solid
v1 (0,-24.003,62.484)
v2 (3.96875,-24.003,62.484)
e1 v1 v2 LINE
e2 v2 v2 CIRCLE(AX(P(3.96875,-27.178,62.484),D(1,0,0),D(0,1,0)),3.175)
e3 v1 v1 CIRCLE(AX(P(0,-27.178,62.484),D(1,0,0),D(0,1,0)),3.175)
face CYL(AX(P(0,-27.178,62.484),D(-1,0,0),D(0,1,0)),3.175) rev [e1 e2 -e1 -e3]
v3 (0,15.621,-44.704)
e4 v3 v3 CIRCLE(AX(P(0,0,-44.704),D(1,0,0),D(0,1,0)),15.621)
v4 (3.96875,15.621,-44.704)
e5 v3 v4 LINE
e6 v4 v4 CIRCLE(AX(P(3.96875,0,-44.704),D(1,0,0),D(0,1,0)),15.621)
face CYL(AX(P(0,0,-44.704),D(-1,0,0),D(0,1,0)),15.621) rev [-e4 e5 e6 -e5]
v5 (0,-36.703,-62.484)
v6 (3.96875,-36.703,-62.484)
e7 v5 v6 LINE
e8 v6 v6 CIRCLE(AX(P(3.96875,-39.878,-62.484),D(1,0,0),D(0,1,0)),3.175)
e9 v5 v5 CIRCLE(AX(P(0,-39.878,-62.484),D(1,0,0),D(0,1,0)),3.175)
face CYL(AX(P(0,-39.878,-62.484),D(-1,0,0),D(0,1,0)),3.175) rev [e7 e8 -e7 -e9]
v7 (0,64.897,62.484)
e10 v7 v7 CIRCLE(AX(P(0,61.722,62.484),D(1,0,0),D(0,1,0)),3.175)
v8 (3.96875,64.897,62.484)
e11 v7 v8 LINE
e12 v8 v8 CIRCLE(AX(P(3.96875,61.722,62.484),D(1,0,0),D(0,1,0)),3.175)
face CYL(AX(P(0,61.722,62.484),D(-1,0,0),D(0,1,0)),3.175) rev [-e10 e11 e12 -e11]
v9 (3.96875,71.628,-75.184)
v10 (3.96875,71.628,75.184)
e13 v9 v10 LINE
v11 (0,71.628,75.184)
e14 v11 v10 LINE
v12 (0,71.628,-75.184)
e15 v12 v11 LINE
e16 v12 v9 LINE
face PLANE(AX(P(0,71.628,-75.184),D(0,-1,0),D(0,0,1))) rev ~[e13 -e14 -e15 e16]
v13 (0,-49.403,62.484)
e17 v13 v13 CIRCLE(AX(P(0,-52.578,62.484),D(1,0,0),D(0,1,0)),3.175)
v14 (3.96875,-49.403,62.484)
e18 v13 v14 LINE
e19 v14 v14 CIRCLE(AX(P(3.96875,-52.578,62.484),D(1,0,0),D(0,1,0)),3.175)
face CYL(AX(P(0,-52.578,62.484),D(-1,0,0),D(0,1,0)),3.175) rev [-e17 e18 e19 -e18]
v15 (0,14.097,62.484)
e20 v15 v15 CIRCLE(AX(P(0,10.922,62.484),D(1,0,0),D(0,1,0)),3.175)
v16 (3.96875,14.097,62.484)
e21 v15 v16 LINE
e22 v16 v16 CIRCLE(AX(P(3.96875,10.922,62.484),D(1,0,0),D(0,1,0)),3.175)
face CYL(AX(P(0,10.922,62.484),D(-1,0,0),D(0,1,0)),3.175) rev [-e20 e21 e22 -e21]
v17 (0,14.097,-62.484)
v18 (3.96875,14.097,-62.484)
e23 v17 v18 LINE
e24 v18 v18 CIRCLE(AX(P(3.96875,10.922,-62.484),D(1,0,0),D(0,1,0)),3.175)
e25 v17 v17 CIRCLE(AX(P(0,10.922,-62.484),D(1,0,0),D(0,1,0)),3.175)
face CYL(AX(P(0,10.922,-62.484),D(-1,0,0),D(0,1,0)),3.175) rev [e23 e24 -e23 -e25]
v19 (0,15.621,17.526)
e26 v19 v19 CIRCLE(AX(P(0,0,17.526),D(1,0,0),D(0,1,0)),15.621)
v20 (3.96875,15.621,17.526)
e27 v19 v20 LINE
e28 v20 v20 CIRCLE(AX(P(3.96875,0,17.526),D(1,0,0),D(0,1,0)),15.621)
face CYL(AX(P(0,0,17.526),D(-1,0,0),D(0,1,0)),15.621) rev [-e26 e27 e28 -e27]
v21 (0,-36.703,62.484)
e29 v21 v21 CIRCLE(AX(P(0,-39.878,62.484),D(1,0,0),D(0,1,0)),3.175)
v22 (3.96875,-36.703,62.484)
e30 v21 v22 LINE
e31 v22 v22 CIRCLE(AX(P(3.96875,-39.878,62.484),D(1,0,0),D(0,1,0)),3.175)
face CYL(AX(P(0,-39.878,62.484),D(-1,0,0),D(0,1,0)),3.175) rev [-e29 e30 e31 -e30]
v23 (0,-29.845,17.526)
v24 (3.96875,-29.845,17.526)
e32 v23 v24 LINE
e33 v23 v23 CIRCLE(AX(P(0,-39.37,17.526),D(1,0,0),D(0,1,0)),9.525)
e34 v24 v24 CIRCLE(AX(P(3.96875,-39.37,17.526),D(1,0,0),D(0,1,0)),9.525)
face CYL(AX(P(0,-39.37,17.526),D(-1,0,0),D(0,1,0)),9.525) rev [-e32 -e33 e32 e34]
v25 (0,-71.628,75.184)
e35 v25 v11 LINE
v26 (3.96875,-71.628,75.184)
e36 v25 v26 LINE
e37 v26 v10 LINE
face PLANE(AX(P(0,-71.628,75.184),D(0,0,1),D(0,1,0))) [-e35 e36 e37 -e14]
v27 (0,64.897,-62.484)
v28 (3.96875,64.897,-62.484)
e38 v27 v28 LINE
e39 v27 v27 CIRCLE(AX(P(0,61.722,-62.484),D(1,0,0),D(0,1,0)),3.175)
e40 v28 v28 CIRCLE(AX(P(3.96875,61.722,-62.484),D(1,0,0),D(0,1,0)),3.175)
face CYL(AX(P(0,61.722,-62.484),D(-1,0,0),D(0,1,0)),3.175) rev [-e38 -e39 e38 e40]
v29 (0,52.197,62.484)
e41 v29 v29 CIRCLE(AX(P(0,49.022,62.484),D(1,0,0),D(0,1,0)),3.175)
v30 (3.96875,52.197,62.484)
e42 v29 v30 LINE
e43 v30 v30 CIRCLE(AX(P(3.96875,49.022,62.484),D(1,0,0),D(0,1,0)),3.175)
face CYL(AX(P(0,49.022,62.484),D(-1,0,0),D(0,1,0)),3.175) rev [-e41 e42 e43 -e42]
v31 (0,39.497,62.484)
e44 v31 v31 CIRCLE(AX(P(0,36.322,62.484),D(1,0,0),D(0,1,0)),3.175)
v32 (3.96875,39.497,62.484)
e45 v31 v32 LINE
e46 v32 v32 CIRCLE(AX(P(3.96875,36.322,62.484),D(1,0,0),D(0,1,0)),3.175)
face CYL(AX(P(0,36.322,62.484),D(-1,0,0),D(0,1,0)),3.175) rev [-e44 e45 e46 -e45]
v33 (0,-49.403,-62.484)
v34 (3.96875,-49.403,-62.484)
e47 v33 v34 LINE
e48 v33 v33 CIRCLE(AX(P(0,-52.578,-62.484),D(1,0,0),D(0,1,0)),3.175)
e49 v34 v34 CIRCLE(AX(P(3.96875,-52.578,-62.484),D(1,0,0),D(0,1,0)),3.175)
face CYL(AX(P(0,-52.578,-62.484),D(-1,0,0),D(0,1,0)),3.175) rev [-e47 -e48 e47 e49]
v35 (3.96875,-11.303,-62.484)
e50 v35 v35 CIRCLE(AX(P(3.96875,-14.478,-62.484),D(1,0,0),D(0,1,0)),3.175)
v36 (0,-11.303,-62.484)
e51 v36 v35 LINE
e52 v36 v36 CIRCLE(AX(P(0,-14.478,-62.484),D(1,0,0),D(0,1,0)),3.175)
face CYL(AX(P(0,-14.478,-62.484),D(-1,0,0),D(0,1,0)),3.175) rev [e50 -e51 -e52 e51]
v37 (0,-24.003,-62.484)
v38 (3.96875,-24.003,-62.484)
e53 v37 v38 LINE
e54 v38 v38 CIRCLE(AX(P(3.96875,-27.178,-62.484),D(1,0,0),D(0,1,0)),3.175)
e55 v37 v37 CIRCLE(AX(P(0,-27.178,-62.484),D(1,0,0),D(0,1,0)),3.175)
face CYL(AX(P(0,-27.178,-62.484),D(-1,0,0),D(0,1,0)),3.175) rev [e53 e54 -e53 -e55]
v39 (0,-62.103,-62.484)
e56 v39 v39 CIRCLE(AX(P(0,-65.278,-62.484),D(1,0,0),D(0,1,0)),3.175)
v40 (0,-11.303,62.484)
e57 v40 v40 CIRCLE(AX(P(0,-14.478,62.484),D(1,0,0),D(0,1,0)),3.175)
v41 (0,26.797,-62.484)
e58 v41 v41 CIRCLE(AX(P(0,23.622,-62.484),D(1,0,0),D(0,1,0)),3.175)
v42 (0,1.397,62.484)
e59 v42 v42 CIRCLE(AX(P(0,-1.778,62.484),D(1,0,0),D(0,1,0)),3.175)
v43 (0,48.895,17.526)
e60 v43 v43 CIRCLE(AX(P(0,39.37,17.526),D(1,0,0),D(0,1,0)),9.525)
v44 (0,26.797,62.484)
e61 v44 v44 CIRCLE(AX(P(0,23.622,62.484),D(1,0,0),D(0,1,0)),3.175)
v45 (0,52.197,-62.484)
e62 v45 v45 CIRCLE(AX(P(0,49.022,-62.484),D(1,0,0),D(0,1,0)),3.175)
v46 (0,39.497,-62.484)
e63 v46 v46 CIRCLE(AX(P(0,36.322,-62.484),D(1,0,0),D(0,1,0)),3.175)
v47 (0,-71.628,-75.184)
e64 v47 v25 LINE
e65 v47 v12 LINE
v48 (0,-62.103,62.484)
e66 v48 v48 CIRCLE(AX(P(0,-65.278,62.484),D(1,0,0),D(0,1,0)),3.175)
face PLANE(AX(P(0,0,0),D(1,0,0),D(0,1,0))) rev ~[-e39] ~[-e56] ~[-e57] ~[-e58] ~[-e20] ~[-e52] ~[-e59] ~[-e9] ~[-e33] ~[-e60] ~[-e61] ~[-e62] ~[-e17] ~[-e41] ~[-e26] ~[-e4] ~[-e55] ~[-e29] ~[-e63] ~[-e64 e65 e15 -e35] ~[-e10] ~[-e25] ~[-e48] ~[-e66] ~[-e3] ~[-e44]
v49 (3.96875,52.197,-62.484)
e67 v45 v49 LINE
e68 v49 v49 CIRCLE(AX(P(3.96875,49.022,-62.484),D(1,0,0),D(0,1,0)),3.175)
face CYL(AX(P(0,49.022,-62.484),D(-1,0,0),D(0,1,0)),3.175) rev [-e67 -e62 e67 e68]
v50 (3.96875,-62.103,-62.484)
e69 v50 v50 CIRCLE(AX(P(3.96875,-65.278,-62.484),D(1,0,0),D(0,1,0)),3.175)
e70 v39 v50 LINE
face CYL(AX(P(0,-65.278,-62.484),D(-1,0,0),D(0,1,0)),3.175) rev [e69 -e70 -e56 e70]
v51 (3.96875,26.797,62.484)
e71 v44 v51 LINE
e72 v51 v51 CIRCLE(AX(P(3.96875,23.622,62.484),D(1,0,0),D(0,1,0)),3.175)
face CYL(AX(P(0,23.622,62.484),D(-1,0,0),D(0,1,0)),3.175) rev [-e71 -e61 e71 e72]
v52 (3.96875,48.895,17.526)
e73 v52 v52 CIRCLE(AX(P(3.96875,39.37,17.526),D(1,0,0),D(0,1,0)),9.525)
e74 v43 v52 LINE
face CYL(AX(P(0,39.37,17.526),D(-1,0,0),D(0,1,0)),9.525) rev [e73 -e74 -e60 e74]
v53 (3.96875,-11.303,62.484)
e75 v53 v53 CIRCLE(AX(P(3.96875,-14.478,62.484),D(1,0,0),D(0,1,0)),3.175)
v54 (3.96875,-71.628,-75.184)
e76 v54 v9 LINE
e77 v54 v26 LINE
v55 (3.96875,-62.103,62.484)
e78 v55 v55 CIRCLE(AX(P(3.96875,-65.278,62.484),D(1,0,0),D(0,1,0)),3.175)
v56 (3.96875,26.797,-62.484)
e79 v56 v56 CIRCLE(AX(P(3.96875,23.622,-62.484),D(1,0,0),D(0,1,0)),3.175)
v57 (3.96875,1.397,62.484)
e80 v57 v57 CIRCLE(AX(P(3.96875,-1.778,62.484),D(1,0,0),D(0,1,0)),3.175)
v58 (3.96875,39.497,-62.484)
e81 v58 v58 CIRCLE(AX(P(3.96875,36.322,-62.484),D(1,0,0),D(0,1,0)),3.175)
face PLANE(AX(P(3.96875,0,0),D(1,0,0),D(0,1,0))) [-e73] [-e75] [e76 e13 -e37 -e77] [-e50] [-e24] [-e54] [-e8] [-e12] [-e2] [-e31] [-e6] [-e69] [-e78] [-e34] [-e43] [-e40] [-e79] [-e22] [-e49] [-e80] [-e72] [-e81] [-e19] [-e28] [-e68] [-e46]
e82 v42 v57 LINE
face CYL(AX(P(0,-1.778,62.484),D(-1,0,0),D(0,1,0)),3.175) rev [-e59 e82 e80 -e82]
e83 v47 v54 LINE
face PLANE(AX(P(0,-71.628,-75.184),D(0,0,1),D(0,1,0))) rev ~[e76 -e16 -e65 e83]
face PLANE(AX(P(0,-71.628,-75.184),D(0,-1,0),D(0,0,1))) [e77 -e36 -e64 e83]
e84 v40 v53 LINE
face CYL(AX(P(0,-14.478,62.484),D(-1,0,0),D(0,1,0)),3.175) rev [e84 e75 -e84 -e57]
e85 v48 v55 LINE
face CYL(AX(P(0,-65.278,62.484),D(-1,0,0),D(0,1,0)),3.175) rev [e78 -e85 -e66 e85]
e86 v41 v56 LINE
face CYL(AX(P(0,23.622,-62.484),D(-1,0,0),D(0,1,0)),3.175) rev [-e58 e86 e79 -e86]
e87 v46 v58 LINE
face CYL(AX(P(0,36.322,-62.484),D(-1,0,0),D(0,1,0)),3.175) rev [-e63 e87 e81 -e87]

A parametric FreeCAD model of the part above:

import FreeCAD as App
import Part
import Sketcher
from FreeCAD import Vector
Q = App.Units.Quantity

doc = App.newDocument("Part")
body = doc.addObject("PartDesign::Body", "Body")

# Sketch on YZ plane
sketch1 = body.newObject("Sketcher::SketchObject", "Sketch")
sketch1.AttachmentSupport = (doc.getObject("YZ_Plane"), [""])
sketch1.MapMode = "FlatFace"
sketch1.addGeometry(Part.LineSegment(Vector(-71.628, 75.184, 0), Vector(-71.628, -75.184, 0)), False)
sketch1.addGeometry(Part.LineSegment(Vector(-71.628, -75.184, 0), Vector(71.628, -75.184, 0)), False)
sketch1.addGeometry(Part.LineSegment(Vector(71.628, -75.184, 0), Vector(71.628, 75.184, 0)), False)
sketch1.addGeometry(Part.LineSegment(Vector(71.628, 75.184, 0), Vector(-71.628, 75.184, 0)), False)
sketch1.addGeometry(Part.Circle(Vector(-65.278, -62.484, 0), Vector(0, 0, 1), 3.175), False)
sketch1.addGeometry(Part.Circle(Vector(-52.578, -62.484, 0), Vector(0, 0, 1), 3.175), False)
sketch1.addGeometry(Part.Circle(Vector(-39.878, -62.484, 0), Vector(0, 0, 1), 3.175), False)
sketch1.addGeometry(Part.Circle(Vector(-27.178, -62.484, 0), Vector(0, 0, 1), 3.175), False)
sketch1.addGeometry(Part.Circle(Vector(-14.478, -62.484, 0), Vector(0, 0, 1), 3.175), False)
sketch1.addGeometry(Part.Circle(Vector(10.922, -62.484, 0), Vector(0, 0, 1), 3.175), False)
sketch1.addGeometry(Part.Circle(Vector(23.622, -62.484, 0), Vector(0, 0, 1), 3.175), False)
sketch1.addGeometry(Part.Circle(Vector(0, -44.704, 0), Vector(0, 0, 1), 15.621), False)
sketch1.addGeometry(Part.Circle(Vector(36.322, -62.484, 0), Vector(0, 0, 1), 3.175), False)
sketch1.addGeometry(Part.Circle(Vector(49.022, -62.484, 0), Vector(0, 0, 1), 3.175), False)
sketch1.addGeometry(Part.Circle(Vector(61.722, -62.484, 0), Vector(0, 0, 1), 3.175), False)
sketch1.addGeometry(Part.Circle(Vector(-39.37, 17.526, 0), Vector(0, 0, 1), 9.525), False)
sketch1.addGeometry(Part.Circle(Vector(-65.278, 62.484, 0), Vector(0, 0, 1), 3.175), False)
sketch1.addGeometry(Part.Circle(Vector(-52.578, 62.484, 0), Vector(0, 0, 1), 3.175), False)
sketch1.addGeometry(Part.Circle(Vector(-39.878, 62.484, 0), Vector(0, 0, 1), 3.175), False)
sketch1.addGeometry(Part.Circle(Vector(-27.178, 62.484, 0), Vector(0, 0, 1), 3.175), False)
sketch1.addGeometry(Part.Circle(Vector(-14.478, 62.484, 0), Vector(0, 0, 1), 3.175), False)
sketch1.addGeometry(Part.Circle(Vector(-1.778, 62.484, 0), Vector(0, 0, 1), 3.175), False)
sketch1.addGeometry(Part.Circle(Vector(0, 17.526, 0), Vector(0, 0, 1), 15.621), False)
sketch1.addGeometry(Part.Circle(Vector(39.37, 17.526, 0), Vector(0, 0, 1), 9.525), False)
sketch1.addGeometry(Part.Circle(Vector(10.922, 62.484, 0), Vector(0, 0, 1), 3.175), False)
sketch1.addGeometry(Part.Circle(Vector(23.622, 62.484, 0), Vector(0, 0, 1), 3.175), False)
sketch1.addGeometry(Part.Circle(Vector(36.322, 62.484, 0), Vector(0, 0, 1), 3.175), False)
sketch1.addGeometry(Part.Circle(Vector(49.022, 62.484, 0), Vector(0, 0, 1), 3.175), False)
sketch1.addGeometry(Part.Circle(Vector(61.722, 62.484, 0), Vector(0, 0, 1), 3.175), False)
sketch1.addConstraint(Sketcher.Constraint("Coincident", 0, 2, 1, 1))
sketch1.addConstraint(Sketcher.Constraint("Coincident", 1, 2, 2, 1))
sketch1.addConstraint(Sketcher.Constraint("Coincident", 2, 2, 3, 1))
sketch1.addConstraint(Sketcher.Constraint("Coincident", 3, 2, 0, 1))
sketch1.addConstraint(Sketcher.Constraint("Vertical", 0))
sketch1.addConstraint(Sketcher.Constraint("Horizontal", 1))
sketch1.addConstraint(Sketcher.Constraint("Vertical", 2))
sketch1.addConstraint(Sketcher.Constraint("Horizontal", 3))
sketch1.addConstraint(Sketcher.Constraint("Equal", 4, 5))
sketch1.addConstraint(Sketcher.Constraint("Equal", 5, 6))
sketch1.addConstraint(Sketcher.Constraint("Equal", 6, 7))
sketch1.addConstraint(Sketcher.Constraint("Equal", 7, 8))
sketch1.addConstraint(Sketcher.Constraint("Equal", 8, 9))
sketch1.addConstraint(Sketcher.Constraint("Equal", 9, 10))
sketch1.addConstraint(Sketcher.Constraint("Equal", 10, 12))
sketch1.addConstraint(Sketcher.Constraint("Equal", 12, 13))
sketch1.addConstraint(Sketcher.Constraint("Equal", 13, 14))
sketch1.addConstraint(Sketcher.Constraint("Equal", 14, 16))
sketch1.addConstraint(Sketcher.Constraint("Equal", 16, 17))
sketch1.addConstraint(Sketcher.Constraint("Equal", 17, 18))
sketch1.addConstraint(Sketcher.Constraint("Equal", 18, 19))
sketch1.addConstraint(Sketcher.Constraint("Equal", 19, 20))
sketch1.addConstraint(Sketcher.Constraint("Equal", 20, 21))
sketch1.addConstraint(Sketcher.Constraint("Equal", 11, 22))
sketch1.addConstraint(Sketcher.Constraint("Equal", 15, 23))
sketch1.addConstraint(Sketcher.Constraint("Equal", 21, 24))
sketch1.addConstraint(Sketcher.Constraint("Equal", 24, 25))
sketch1.addConstraint(Sketcher.Constraint("Equal", 25, 26))
sketch1.addConstraint(Sketcher.Constraint("Equal", 26, 27))
sketch1.addConstraint(Sketcher.Constraint("Equal", 27, 28))
sketch1.addConstraint(Sketcher.Constraint("Symmetric", 0, 2, 2, 2, -1, 1))
sketch1.addConstraint(Sketcher.Constraint("Symmetric", 15, 3, 23, 3, -2))
sketch1.addConstraint(Sketcher.Constraint("Symmetric", 4, 3, 16, 3, -1))
sketch1.addConstraint(Sketcher.Constraint("Symmetric", 5, 3, 17, 3, -1))
sketch1.addConstraint(Sketcher.Constraint("Symmetric", 6, 3, 18, 3, -1))
sketch1.addConstraint(Sketcher.Constraint("Symmetric", 7, 3, 19, 3, -1))
sketch1.addConstraint(Sketcher.Constraint("Symmetric", 8, 3, 20, 3, -1))
sketch1.addConstraint(Sketcher.Constraint("Symmetric", 9, 3, 24, 3, -1))
sketch1.addConstraint(Sketcher.Constraint("Symmetric", 10, 3, 25, 3, -1))
sketch1.addConstraint(Sketcher.Constraint("Symmetric", 12, 3, 26, 3, -1))
sketch1.addConstraint(Sketcher.Constraint("Symmetric", 13, 3, 27, 3, -1))
sketch1.addConstraint(Sketcher.Constraint("Symmetric", 14, 3, 28, 3, -1))
sketch1.addConstraint(Sketcher.Constraint("PointOnObject", 11, 3, -2))
sketch1.addConstraint(Sketcher.Constraint("PointOnObject", 22, 3, -2))
sketch1.addConstraint(Sketcher.Constraint("Horizontal", 4, 3, 5, 3))
sketch1.addConstraint(Sketcher.Constraint("Horizontal", 5, 3, 6, 3))
sketch1.addConstraint(Sketcher.Constraint("Horizontal", 6, 3, 7, 3))
sketch1.addConstraint(Sketcher.Constraint("Horizontal", 7, 3, 8, 3))
sketch1.addConstraint(Sketcher.Constraint("Horizontal", 8, 3, 9, 3))
sketch1.addConstraint(Sketcher.Constraint("Horizontal", 9, 3, 10, 3))
sketch1.addConstraint(Sketcher.Constraint("Horizontal", 10, 3, 12, 3))
sketch1.addConstraint(Sketcher.Constraint("Horizontal", 12, 3, 13, 3))
sketch1.addConstraint(Sketcher.Constraint("Horizontal", 13, 3, 14, 3))
sketch1.addConstraint(Sketcher.Constraint("Horizontal", 20, 3, 21, 3))
sketch1.addConstraint(Sketcher.Constraint("Horizontal", 15, 3, 22, 3))
sketch1.addConstraint(Sketcher.Constraint("Diameter", 4, Q("0.25 in")))
sketch1.addConstraint(Sketcher.Constraint("Diameter", 11, Q("1.23 in")))
sketch1.addConstraint(Sketcher.Constraint("Diameter", 15, Q("0.75 in")))
sketch1.addConstraint(Sketcher.Constraint("DistanceX", 4, 3, 6, 3, Q("1 in")))
sketch1.addConstraint(Sketcher.Constraint("DistanceX", 5, 3, 7, 3, Q("1 in")))
sketch1.addConstraint(Sketcher.Constraint("DistanceX", 6, 3, 8, 3, Q("1 in")))
sketch1.addConstraint(Sketcher.Constraint("DistanceX", 8, 3, 9, 3, Q("1 in")))
sketch1.addConstraint(Sketcher.Constraint("DistanceX", 7, 3, 10, 3, Q("2 in")))
sketch1.addConstraint(Sketcher.Constraint("DistanceX", 9, 3, 12, 3, Q("1 in")))
sketch1.addConstraint(Sketcher.Constraint("DistanceX", 10, 3, 13, 3, Q("1 in")))
sketch1.addConstraint(Sketcher.Constraint("DistanceX", 12, 3, 14, 3, Q("1 in")))
sketch1.addConstraint(Sketcher.Constraint("DistanceX", 19, 3, 21, 3, Q("1 in")))
sketch1.addConstraint(Sketcher.Constraint("DistanceX", 1, 1, 1, 2, Q("5.64 in")))
sketch1.addConstraint(Sketcher.Constraint("DistanceY", 0, 2, 0, 1, Q("5.92 in")))
sketch1.addConstraint(Sketcher.Constraint("DistanceX", 4, 3, 5, 3, Q("0.5 in")))
sketch1.addConstraint(Sketcher.Constraint("DistanceY", 9, 3, 11, 3, Q("0.7 in")))
sketch1.addConstraint(Sketcher.Constraint("DistanceX", 15, 3, 23, 3, Q("3.1 in")))
sketch1.addConstraint(Sketcher.Constraint("DistanceY", 0, 2, 4, 3, Q("0.5 in")))
sketch1.addConstraint(Sketcher.Constraint("DistanceX", 4, 3, -1, 1, Q("2.57 in")))
sketch1.addConstraint(Sketcher.Constraint("DistanceY", -1, 1, 15, 3, Q("0.69 in")))
pad1 = body.newObject("PartDesign::Pad", "Pad")
pad1.Profile = sketch1
pad1.Length = Q("0.15625 in")

doc.recompute()
